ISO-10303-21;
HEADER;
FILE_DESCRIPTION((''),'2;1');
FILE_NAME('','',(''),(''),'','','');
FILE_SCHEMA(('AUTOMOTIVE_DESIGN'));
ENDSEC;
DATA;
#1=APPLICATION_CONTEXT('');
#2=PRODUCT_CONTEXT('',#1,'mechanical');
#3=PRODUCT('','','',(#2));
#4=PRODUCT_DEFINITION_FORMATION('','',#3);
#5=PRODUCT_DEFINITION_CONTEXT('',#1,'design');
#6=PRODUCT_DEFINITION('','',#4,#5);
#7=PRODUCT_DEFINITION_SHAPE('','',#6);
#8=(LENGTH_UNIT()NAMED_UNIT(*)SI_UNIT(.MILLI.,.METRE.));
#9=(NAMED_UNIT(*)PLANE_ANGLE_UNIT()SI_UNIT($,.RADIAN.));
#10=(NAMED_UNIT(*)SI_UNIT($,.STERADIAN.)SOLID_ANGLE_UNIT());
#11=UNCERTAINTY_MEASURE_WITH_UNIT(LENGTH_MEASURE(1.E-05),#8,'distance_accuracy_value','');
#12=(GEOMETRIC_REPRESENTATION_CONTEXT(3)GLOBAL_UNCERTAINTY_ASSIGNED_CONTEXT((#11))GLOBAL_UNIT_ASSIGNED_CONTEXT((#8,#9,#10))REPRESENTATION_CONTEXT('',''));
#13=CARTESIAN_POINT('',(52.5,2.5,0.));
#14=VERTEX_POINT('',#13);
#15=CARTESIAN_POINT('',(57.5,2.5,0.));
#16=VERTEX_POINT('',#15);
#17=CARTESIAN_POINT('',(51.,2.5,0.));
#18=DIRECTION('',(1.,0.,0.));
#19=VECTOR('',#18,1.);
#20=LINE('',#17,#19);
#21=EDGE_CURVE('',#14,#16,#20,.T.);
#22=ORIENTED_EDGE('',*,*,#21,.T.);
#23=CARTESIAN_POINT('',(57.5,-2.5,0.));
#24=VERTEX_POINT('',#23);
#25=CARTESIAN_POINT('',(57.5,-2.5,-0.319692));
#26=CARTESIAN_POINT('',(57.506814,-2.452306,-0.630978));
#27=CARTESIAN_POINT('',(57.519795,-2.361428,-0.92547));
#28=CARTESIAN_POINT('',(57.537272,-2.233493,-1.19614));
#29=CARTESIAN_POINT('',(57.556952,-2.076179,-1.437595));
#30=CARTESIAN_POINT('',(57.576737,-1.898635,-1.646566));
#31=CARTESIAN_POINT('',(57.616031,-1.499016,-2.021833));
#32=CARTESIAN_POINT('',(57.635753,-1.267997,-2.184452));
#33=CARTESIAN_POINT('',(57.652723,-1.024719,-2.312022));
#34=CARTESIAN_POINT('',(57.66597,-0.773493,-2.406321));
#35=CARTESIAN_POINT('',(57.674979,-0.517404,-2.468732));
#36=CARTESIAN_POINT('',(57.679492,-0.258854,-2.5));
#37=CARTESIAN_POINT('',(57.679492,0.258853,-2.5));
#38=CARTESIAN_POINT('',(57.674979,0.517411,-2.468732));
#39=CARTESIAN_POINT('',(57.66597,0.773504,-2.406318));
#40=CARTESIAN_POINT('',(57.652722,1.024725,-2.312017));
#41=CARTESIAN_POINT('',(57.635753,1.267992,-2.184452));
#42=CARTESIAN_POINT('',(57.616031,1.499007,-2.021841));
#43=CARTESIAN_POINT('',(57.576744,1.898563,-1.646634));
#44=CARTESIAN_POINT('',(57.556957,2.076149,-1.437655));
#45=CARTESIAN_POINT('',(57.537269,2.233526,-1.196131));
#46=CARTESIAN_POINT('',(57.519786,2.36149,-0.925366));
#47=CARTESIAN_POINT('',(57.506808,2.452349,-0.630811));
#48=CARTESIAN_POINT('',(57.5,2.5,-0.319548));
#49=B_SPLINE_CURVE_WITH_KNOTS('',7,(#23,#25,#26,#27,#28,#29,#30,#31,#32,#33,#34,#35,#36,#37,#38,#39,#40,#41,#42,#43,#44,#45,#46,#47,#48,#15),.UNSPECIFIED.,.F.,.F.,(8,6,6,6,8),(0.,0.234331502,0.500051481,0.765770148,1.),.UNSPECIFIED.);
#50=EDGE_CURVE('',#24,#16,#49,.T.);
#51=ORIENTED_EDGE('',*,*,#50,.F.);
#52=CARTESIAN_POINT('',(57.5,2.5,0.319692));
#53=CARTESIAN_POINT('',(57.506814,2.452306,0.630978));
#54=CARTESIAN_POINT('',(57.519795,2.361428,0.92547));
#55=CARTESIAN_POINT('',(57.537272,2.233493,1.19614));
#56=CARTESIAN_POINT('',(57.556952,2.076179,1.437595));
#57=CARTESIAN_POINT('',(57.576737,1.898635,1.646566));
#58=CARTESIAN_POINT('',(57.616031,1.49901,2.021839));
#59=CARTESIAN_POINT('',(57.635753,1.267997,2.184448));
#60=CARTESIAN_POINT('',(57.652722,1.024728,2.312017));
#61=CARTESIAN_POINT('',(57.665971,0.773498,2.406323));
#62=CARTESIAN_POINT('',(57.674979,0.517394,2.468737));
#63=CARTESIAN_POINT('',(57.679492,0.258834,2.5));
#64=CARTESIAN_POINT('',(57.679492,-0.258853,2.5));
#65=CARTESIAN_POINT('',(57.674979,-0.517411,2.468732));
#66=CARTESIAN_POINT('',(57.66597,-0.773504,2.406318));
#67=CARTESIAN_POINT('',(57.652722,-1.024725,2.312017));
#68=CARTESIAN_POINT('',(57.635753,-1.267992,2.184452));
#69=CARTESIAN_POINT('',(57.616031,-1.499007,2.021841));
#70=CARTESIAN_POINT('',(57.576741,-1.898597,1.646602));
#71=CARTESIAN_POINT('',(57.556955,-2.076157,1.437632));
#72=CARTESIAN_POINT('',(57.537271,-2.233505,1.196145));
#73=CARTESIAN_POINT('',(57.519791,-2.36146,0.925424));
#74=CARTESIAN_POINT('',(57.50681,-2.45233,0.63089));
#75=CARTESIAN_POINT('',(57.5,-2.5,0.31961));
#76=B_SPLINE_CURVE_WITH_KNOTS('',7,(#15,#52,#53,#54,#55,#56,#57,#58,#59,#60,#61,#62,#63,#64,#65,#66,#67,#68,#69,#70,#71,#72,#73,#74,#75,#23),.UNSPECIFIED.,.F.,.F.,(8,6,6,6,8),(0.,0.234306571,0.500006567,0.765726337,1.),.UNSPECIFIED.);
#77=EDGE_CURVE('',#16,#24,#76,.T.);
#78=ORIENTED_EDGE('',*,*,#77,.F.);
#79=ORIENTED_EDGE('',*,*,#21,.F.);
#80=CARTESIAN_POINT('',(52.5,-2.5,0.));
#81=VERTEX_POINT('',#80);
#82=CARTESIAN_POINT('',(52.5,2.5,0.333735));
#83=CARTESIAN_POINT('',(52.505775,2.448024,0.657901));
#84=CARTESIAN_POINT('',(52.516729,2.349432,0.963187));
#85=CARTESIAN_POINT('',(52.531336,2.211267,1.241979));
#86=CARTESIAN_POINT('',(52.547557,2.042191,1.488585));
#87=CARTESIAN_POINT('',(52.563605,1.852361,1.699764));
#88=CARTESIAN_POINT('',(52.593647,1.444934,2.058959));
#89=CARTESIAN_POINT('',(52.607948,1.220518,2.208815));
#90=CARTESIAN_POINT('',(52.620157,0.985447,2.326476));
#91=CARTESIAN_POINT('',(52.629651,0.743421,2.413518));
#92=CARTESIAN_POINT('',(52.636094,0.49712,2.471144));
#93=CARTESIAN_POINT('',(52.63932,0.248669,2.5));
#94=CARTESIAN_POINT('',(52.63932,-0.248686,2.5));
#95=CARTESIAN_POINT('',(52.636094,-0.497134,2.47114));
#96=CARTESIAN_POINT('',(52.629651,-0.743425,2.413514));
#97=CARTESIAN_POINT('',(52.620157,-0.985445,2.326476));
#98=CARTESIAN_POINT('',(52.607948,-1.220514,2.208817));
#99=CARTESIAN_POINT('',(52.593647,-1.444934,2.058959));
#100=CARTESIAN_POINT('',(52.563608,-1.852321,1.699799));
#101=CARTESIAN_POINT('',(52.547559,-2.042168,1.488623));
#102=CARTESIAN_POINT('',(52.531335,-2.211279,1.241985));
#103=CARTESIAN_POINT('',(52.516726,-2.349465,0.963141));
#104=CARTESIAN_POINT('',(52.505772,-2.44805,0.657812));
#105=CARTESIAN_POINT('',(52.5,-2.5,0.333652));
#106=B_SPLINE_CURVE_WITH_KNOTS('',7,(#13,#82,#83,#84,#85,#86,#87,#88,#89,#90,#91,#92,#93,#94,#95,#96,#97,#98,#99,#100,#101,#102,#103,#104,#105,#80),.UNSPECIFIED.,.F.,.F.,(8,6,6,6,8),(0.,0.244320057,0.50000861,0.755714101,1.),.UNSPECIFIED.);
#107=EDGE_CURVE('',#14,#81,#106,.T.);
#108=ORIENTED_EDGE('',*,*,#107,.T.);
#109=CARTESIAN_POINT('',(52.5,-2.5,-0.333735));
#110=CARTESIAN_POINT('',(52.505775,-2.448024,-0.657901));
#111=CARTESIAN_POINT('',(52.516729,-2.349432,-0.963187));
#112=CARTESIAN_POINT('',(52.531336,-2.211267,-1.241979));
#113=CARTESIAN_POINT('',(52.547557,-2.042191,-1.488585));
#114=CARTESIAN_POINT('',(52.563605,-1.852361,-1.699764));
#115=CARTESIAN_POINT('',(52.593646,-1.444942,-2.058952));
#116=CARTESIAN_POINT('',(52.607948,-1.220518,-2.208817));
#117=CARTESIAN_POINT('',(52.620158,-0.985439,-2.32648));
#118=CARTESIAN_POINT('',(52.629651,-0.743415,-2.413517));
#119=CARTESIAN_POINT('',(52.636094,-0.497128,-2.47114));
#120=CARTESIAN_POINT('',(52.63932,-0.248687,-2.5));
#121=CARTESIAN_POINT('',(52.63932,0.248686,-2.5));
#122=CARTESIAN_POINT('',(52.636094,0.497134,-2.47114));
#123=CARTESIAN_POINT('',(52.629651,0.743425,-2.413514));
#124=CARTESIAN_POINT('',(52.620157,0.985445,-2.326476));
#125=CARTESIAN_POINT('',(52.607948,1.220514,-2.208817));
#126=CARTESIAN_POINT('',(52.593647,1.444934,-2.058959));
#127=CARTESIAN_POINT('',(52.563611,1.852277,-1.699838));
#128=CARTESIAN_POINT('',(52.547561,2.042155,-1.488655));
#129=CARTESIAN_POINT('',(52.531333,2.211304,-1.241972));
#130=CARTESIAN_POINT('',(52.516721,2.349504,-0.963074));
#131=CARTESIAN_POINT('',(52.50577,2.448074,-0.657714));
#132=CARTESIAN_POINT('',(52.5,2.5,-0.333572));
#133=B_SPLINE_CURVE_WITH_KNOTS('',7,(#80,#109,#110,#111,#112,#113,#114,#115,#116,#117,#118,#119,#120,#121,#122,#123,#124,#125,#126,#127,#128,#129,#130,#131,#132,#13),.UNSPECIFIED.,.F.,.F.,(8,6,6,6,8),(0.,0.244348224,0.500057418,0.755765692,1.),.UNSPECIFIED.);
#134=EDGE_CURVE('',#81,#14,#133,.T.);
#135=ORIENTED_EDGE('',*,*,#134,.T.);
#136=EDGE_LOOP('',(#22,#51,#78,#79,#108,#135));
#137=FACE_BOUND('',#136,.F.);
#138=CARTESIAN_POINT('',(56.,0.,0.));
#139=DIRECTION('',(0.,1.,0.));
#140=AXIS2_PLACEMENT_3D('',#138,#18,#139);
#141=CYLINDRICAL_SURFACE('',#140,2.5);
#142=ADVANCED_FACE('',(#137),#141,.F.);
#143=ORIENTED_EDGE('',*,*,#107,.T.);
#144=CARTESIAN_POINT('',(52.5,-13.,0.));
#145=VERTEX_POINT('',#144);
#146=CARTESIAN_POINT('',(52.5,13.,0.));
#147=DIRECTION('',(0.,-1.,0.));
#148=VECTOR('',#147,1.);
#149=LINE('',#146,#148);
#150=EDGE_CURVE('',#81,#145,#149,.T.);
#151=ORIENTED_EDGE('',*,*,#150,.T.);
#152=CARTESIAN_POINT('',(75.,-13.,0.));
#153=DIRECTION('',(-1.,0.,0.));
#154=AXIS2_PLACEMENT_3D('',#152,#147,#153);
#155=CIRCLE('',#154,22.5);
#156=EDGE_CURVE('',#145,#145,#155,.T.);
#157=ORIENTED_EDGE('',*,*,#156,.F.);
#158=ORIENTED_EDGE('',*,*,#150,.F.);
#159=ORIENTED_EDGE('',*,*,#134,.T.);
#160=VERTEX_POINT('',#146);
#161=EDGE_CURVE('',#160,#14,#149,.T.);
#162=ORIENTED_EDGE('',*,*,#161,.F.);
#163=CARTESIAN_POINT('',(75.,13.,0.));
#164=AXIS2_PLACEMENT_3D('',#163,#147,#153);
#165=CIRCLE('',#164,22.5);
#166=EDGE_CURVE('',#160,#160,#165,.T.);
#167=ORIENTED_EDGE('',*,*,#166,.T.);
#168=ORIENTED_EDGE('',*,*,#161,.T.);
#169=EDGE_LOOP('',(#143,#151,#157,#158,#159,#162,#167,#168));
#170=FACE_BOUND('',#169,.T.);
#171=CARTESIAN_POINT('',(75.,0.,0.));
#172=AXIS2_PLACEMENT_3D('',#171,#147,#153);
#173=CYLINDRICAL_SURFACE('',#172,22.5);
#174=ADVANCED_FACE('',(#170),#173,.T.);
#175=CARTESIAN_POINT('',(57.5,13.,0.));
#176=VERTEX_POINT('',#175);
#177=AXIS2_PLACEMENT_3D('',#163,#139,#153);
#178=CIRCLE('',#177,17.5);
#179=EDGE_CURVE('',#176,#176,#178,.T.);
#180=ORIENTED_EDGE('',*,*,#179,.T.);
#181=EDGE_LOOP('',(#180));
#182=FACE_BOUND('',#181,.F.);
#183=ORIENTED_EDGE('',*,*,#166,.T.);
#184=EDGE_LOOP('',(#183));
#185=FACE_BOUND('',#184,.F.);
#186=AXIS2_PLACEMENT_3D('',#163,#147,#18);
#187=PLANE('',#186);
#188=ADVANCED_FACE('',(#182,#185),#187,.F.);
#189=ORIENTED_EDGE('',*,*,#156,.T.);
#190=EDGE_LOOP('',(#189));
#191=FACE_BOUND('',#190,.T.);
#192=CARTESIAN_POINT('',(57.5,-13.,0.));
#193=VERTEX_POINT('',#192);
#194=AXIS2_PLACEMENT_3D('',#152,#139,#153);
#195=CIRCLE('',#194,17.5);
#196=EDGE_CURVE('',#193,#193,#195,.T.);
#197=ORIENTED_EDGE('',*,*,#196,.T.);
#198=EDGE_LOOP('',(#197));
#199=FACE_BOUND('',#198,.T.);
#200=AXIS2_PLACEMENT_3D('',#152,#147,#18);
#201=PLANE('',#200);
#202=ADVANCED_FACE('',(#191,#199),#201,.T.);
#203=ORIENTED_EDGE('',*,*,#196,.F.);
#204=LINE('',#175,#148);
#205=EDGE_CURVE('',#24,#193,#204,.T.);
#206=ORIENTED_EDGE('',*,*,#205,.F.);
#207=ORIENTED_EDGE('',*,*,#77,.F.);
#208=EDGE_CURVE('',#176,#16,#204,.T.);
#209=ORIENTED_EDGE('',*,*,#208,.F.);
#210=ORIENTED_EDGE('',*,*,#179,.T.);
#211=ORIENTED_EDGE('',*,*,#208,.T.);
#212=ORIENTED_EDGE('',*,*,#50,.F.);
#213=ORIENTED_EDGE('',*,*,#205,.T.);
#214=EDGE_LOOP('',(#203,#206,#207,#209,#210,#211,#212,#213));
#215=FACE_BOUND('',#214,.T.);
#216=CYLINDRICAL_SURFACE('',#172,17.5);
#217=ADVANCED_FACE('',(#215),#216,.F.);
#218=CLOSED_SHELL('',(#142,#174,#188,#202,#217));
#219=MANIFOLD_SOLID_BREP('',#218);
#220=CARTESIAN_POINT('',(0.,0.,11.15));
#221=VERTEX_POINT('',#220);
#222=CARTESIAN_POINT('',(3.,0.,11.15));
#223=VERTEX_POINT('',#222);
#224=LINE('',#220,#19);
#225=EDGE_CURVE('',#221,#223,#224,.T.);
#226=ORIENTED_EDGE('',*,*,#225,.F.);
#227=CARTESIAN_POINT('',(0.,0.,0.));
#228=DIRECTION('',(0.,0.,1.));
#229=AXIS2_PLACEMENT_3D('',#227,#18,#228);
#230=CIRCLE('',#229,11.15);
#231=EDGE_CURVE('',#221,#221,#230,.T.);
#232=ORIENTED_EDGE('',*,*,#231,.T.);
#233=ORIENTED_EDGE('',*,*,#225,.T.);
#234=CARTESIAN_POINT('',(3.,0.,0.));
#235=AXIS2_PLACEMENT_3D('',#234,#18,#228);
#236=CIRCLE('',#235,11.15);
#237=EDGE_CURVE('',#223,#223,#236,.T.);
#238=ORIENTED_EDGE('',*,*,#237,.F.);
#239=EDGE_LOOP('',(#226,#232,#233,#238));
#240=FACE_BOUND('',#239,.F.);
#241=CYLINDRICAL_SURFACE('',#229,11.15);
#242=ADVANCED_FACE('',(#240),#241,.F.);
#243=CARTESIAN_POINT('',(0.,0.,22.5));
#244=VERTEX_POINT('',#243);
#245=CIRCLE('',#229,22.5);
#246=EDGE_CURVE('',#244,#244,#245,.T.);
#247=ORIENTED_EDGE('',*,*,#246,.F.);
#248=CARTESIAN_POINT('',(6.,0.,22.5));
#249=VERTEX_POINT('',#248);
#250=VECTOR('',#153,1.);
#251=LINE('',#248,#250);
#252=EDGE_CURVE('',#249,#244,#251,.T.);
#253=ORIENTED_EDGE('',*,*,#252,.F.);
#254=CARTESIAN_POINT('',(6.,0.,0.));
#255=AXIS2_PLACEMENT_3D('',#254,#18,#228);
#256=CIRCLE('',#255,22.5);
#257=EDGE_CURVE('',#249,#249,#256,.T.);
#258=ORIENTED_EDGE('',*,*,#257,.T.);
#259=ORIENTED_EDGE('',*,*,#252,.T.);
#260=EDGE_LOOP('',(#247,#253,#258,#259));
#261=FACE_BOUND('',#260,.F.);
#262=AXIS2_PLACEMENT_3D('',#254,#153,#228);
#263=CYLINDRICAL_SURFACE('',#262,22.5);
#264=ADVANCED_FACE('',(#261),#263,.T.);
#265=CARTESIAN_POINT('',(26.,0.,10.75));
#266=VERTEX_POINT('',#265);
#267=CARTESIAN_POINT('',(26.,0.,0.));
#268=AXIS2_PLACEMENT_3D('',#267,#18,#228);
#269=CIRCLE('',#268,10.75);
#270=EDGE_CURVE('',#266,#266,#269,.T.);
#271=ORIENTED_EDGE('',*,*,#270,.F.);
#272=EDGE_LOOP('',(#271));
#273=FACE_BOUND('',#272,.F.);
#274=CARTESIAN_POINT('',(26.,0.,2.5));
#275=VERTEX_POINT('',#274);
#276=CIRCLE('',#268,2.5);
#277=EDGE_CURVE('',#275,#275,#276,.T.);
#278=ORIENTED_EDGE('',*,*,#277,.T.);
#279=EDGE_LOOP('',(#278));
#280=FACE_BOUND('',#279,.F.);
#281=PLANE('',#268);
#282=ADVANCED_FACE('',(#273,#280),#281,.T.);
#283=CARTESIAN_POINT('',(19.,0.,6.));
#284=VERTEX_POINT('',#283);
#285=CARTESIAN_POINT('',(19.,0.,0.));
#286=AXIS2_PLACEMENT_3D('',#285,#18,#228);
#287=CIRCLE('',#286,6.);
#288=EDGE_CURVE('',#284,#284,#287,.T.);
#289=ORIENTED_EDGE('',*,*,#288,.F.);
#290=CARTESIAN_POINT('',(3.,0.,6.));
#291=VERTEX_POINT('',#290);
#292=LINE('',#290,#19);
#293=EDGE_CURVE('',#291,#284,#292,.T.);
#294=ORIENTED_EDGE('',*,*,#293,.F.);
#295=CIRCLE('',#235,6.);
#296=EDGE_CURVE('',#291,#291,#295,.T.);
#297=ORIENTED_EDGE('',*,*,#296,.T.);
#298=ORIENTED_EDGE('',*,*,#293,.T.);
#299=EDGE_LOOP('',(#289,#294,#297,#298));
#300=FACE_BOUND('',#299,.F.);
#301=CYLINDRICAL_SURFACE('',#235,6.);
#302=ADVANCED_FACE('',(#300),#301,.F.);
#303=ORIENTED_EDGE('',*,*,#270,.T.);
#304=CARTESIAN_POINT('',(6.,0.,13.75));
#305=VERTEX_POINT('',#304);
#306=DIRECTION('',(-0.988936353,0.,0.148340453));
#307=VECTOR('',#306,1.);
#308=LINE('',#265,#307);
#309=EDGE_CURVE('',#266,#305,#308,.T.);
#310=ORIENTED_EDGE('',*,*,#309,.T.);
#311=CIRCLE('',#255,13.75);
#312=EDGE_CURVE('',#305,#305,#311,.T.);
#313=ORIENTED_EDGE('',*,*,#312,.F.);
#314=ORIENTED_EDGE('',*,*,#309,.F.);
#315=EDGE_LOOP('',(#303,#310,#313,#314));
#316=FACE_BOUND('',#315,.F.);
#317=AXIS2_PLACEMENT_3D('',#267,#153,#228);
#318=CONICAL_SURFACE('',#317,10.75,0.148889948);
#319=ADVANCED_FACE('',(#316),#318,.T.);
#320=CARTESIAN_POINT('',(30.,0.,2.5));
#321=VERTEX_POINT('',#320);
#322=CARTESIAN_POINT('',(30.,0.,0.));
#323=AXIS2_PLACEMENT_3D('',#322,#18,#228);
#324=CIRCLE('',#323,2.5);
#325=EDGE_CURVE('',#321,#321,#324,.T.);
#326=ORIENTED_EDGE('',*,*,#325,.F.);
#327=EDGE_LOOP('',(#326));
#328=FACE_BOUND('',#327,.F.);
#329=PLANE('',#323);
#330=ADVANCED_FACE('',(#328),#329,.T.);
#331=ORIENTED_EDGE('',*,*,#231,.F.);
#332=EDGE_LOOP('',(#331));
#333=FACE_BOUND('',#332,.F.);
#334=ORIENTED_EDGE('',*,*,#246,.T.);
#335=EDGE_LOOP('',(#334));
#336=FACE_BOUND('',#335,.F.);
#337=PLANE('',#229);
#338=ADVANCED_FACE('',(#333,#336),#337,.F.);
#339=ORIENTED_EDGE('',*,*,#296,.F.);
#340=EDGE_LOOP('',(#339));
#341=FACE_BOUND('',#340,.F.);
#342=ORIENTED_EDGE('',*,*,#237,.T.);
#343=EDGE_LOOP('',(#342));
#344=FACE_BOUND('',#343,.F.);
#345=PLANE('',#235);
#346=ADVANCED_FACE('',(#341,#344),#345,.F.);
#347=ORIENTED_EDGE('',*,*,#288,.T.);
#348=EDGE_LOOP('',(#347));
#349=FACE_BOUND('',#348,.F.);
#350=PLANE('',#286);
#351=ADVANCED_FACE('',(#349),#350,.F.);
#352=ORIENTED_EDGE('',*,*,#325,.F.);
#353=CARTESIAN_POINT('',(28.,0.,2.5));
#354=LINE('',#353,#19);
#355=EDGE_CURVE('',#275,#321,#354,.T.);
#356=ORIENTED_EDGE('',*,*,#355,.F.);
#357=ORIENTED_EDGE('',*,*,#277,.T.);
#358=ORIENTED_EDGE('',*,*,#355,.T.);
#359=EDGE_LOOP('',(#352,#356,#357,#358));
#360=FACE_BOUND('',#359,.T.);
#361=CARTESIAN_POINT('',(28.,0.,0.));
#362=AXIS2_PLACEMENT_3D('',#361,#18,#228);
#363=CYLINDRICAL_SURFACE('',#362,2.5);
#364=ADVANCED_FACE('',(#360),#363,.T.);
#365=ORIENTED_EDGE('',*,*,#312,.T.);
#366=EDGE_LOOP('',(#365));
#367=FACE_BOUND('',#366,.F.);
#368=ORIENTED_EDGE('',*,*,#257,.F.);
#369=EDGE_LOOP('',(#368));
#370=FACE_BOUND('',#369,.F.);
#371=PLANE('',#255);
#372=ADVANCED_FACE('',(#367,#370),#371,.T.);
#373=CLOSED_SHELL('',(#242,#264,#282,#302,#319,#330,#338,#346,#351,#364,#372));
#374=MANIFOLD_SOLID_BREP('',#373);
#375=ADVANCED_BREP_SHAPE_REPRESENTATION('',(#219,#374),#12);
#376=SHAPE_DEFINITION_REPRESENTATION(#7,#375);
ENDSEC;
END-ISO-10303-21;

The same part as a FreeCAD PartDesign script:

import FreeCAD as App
import Part
import Sketcher

V = App.Vector


def add_polygon(sketch, points):
    """Adds a closed chain of lines whose ends are joined by coincident constraints."""
    first, n = sketch.GeometryCount, len(points)
    for a, b in zip(points, points[1:] + points[:1]):
        sketch.addGeometry(Part.LineSegment(App.Vector(*a, 0), App.Vector(*b, 0)), False)
    for i in range(n):
        sketch.addConstraint(Sketcher.Constraint("Coincident", first + i, 2, first + (i + 1) % n, 1))

doc = App.newDocument("Part")
body = doc.addObject("PartDesign::Body", "Body")

# Sketch on XZ plane
sketch1 = body.newObject("Sketcher::SketchObject", "Sketch")
sketch1.AttachmentSupport = (doc.getObject("XZ_Plane"), [""])
sketch1.MapMode = "FlatFace"
add_polygon(sketch1, [(0, 22.5), (0, 11.15), (3, 11.15), (3, 6), (19, 6), (19, 0), (30, 0), (30, 2.5), (26, 2.5), (26, 10.75), (6, 13.75), (6, 22.5)])  # lines 0-11
sketch1.addConstraint([
    Sketcher.Constraint("Vertical", 0),
    Sketcher.Constraint("Horizontal", 1),
    Sketcher.Constraint("Vertical", 2),
    Sketcher.Constraint("Horizontal", 3),
    Sketcher.Constraint("Vertical", 4),
    Sketcher.Constraint("Horizontal", 5),
    Sketcher.Constraint("Vertical", 6),
    Sketcher.Constraint("Horizontal", 7),
    Sketcher.Constraint("Vertical", 8),
    Sketcher.Constraint("Vertical", 10),
    Sketcher.Constraint("Horizontal", 11),
    Sketcher.Constraint("PointOnObject", 0, 2, -2),
    Sketcher.Constraint("PointOnObject", 4, 2, -1),
    Sketcher.Constraint("Equal", 11, 4),
    Sketcher.Constraint("DistanceX", 1, 1, 1, 2, 3.0),
    Sketcher.Constraint("DistanceX", 3, 1, 3, 2, 16.0),
    Sketcher.Constraint("DistanceX", 5, 1, 5, 2, 11.0),
    Sketcher.Constraint("DistanceX", 7, 2, 7, 1, 4.0),
    Sketcher.Constraint("DistanceX", 11, 2, 11, 1, 6.0),
    Sketcher.Constraint("DistanceY", 6, 1, 6, 2, 2.5),
    Sketcher.Constraint("DistanceY", 0, 2, 0, 1, 11.35),
    Sketcher.Constraint("DistanceY", 2, 2, 2, 1, 5.15),
    Sketcher.Constraint("DistanceY", 8, 1, 8, 2, 8.25),
    Sketcher.Constraint("DistanceY", 10, 1, 10, 2, 8.75),
])
revolution = body.newObject("PartDesign::Revolution", "Revolution")
revolution.Profile = sketch1
revolution.ReferenceAxis = (sketch1, ["H_Axis"])
revolution.Angle = 360
body2 = doc.addObject("PartDesign::Body", "Body001")

# Sketch on XZ plane
sketch2 = body2.newObject("Sketcher::SketchObject", "Sketch001")
sketch2.AttachmentSupport = (doc.getObject("XZ_Plane001"), [""])
sketch2.MapMode = "FlatFace"
sketch2.addGeometry([
    Part.Circle(V(75, 0, 0), V(0, 0, 1), 22.5),
    Part.Circle(V(75, 0, 0), V(0, 0, 1), 17.5),
], False)
sketch2.addConstraint([
    Sketcher.Constraint("Coincident", 1, 3, 0, 3),
    Sketcher.Constraint("PointOnObject", 0, 3, -1),
    Sketcher.Constraint("Diameter", 0, 45.0),
    Sketcher.Constraint("Diameter", 1, 35.0),
    Sketcher.Constraint("DistanceX", -1, 1, 0, 3, 75.0),
])
pad1 = body2.newObject("PartDesign::Pad", "Pad")
pad1.Profile = sketch2
pad1.Length = 26
pad1.Midplane = True

# Sketch on YZ plane
sketch3 = body2.newObject("Sketcher::SketchObject", "Sketch002")
sketch3.AttachmentSupport = (doc.getObject("YZ_Plane001"), [""])
sketch3.MapMode = "FlatFace"
sketch3.AttachmentOffset = App.Placement(V(0, 0, 56), App.Rotation())
sketch3.addGeometry(Part.Circle(V(0, 0, 0), V(0, 0, 1), 2.5), False)
sketch3.addConstraint([
    Sketcher.Constraint("Coincident", 0, 3, -1, 1),
    Sketcher.Constraint("Diameter", 0, 5.0),
])
pocket1 = body2.newObject("PartDesign::Pocket", "Pocket")
pocket1.Profile = sketch3
pocket1.Length = 10
pocket1.Midplane = True

doc.recompute()
